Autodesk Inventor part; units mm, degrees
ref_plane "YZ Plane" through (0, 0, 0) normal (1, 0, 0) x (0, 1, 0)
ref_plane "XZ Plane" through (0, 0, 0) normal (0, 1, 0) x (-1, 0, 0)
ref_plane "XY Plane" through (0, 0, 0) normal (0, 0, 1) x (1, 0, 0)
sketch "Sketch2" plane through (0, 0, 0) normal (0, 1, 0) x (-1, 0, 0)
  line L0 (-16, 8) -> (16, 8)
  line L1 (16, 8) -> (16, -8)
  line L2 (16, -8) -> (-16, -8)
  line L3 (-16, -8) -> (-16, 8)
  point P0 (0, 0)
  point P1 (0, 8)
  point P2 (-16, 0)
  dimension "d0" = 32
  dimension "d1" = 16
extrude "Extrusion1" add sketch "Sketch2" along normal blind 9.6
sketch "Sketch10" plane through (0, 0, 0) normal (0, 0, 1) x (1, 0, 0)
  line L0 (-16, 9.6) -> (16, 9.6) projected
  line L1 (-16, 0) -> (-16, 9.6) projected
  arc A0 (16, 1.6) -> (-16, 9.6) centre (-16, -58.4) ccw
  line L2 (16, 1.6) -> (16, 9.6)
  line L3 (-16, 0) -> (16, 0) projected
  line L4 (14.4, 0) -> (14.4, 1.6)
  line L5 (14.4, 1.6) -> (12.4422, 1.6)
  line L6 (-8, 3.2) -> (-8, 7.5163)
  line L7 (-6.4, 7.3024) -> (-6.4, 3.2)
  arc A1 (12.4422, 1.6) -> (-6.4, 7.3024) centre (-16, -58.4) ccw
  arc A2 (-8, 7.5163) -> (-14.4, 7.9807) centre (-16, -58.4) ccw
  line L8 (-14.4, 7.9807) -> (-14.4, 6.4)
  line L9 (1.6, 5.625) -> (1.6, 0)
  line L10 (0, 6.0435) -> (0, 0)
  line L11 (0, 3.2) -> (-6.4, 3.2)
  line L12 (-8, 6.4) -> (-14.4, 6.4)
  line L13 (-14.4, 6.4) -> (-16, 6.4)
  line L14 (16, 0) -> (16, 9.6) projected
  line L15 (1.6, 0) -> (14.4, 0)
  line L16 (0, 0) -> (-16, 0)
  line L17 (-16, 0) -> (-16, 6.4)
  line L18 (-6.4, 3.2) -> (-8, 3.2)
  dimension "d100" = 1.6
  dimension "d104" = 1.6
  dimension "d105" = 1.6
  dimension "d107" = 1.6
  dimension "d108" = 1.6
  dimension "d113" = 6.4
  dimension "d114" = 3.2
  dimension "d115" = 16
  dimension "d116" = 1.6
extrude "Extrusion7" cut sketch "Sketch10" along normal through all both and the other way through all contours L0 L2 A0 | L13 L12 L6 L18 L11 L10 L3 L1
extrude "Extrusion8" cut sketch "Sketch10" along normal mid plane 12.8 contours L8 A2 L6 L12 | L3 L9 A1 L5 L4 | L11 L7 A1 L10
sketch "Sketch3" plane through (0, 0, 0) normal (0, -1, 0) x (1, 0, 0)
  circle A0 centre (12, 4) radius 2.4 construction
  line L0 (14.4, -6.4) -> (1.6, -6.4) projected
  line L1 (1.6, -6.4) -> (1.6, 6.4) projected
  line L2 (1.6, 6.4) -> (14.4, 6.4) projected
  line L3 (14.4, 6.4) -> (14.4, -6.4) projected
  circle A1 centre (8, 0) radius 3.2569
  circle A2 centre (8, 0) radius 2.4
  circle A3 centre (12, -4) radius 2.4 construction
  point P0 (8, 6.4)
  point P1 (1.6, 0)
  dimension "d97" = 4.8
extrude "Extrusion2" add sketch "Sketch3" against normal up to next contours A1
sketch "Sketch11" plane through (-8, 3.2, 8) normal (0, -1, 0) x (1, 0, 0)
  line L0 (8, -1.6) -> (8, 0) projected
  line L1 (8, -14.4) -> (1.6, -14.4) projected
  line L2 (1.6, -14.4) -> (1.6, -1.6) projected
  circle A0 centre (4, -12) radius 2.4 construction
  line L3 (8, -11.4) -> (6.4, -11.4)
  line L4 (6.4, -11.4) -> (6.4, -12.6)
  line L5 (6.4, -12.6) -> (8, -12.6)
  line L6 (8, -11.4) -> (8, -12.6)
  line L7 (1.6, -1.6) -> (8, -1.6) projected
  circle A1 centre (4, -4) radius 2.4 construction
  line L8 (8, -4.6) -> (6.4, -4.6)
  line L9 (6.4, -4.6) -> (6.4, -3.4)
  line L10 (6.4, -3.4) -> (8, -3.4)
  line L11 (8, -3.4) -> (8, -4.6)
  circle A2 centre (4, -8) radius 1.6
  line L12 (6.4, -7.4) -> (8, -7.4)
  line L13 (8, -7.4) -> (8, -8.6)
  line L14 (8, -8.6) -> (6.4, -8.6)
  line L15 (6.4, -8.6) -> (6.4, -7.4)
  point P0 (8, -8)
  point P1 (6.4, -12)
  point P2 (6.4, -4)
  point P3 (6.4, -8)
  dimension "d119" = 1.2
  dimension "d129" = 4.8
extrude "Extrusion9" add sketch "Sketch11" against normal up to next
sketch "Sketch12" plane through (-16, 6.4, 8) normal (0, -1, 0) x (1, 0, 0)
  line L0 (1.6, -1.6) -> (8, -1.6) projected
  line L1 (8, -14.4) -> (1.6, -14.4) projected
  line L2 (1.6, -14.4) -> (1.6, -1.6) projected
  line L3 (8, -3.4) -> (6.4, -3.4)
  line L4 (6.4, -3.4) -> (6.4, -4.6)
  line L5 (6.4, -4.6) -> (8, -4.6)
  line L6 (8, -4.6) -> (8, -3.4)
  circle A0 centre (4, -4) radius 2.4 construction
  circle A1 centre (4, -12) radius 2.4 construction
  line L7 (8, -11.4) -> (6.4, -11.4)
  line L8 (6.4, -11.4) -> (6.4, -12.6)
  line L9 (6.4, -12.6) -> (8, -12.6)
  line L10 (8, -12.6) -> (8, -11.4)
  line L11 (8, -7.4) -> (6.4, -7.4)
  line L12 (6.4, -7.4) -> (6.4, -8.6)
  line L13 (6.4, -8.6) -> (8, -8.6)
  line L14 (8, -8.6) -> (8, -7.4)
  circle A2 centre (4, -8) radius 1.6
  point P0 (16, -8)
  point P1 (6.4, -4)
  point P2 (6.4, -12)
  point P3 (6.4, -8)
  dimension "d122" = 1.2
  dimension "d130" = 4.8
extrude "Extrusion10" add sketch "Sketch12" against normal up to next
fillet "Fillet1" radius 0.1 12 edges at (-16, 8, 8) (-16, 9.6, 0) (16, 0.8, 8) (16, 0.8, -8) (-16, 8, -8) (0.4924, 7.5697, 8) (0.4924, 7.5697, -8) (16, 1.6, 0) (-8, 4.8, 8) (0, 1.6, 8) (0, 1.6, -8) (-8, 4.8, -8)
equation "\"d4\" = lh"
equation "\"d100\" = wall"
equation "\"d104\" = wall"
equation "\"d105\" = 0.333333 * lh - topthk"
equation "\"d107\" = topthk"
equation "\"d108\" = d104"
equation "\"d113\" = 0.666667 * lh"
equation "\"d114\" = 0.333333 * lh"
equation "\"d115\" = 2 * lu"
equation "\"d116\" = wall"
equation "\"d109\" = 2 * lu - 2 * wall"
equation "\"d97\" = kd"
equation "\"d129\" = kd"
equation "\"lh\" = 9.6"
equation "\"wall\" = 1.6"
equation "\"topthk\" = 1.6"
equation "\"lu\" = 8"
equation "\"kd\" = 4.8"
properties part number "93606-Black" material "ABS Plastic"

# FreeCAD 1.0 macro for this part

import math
import FreeCAD as App
import Part
import Sketcher

V = App.Vector
Q = App.Units.Quantity


def edges_at(feature, points):
    """Names of the edges that pass closest to the given points."""
    edges = feature.Shape.Edges
    near = lambda p: min(range(len(edges)), key=lambda i: edges[i].distToShape(Part.Vertex(*p))[0])
    return sorted({f"Edge{near(p) + 1}" for p in points})

doc = App.newDocument("Part")
body = doc.addObject("PartDesign::Body", "Body")

# Sketch on XZ plane
sketch1 = body.newObject("Sketcher::SketchObject", "Sketch")
sketch1.AttachmentSupport = (doc.getObject("XZ_Plane"), [""])
sketch1.MapMode = "FlatFace"
sketch1.addGeometry([
    Part.LineSegment(V(-16, 8, 0), V(16, 8, 0)),
    Part.LineSegment(V(16, 8, 0), V(16, -8, 0)),
    Part.LineSegment(V(16, -8, 0), V(-16, -8, 0)),
    Part.LineSegment(V(-16, -8, 0), V(-16, 8, 0)),
], False)
sketch1.addConstraint([
    Sketcher.Constraint("Coincident", 0, 2, 1, 1),
    Sketcher.Constraint("Coincident", 1, 2, 2, 1),
    Sketcher.Constraint("Coincident", 2, 2, 3, 1),
    Sketcher.Constraint("Coincident", 3, 2, 0, 1),
    Sketcher.Constraint("Horizontal", 0),
    Sketcher.Constraint("Vertical", 1),
    Sketcher.Constraint("Horizontal", 2),
    Sketcher.Constraint("Vertical", 3),
    Sketcher.Constraint("Symmetric", 0, 2, 2, 2, -1, 1),
    Sketcher.Constraint("DistanceX", 0, 1, 0, 2, Q("32 mm")),
    Sketcher.Constraint("DistanceY", 1, 2, 1, 1, Q("16 mm")),
])
pad1 = body.newObject("PartDesign::Pad", "Pad")
pad1.Profile = sketch1
pad1.Length = 9.6
pad1.Reversed = True

# Sketch on XY plane
sketch2 = body.newObject("Sketcher::SketchObject", "Sketch001")
sketch2.AttachmentSupport = (doc.getObject("XY_Plane"), [""])
sketch2.MapMode = "FlatFace"
sketch2.addGeometry([
    Part.LineSegment(V(16, 9.6, 0), V(-16, 9.6, 0)),  # 0
    Part.ArcOfCircle(Part.Circle(V(-16, -58.4, 0), V(0, 0, 1), 68), math.radians(61.927513), math.radians(90)),  # 1
    Part.LineSegment(V(16, 1.6, 0), V(16, 9.6, 0)),  # 2
    Part.LineSegment(V(-8, 6.4, 0), V(-16, 6.4, 0)),  # 3
    Part.LineSegment(V(-16, 6.4, 0), V(-16, 0, 0)),  # 4
    Part.LineSegment(V(-16, 0, 0), V(0, 0, 0)),  # 5
    Part.LineSegment(V(0, 0, 0), V(0, 3.2, 0)),  # 6
    Part.LineSegment(V(0, 3.2, 0), V(-8, 3.2, 0)),  # 7
    Part.LineSegment(V(-8, 3.2, 0), V(-8, 6.4, 0)),  # 8
], False)
sketch2.addConstraint([
    Sketcher.Constraint("Tangent", 0, 2, 1, 2),
    Sketcher.Constraint("Coincident", 1, 1, 2, 1),
    Sketcher.Constraint("Coincident", 2, 2, 0, 1),
    Sketcher.Constraint("Coincident", 3, 2, 4, 1),
    Sketcher.Constraint("Coincident", 4, 2, 5, 1),
    Sketcher.Constraint("Coincident", 5, 2, 6, 1),
    Sketcher.Constraint("Coincident", 6, 2, 7, 1),
    Sketcher.Constraint("Coincident", 7, 2, 8, 1),
    Sketcher.Constraint("Coincident", 8, 2, 3, 1),
    Sketcher.Constraint("Horizontal", 0),
    Sketcher.Constraint("Vertical", 2),
    Sketcher.Constraint("Horizontal", 3),
    Sketcher.Constraint("Vertical", 4),
    Sketcher.Constraint("Horizontal", 5),
    Sketcher.Constraint("Vertical", 6),
    Sketcher.Constraint("Horizontal", 7),
    Sketcher.Constraint("Vertical", 8),
    Sketcher.Constraint("Coincident", 5, 2, -1, 1),
    Sketcher.Constraint("Vertical", 0, 2, 3, 2),
    Sketcher.Constraint("Equal", 3, 7),
    Sketcher.Constraint("Equal", 7, 2),
    Sketcher.Constraint("Equal", 6, 8),
    Sketcher.Constraint("DistanceX", 5, 1, 5, 2, Q("16 mm")),
    Sketcher.Constraint("DistanceY", 4, 2, 4, 1, Q("6.4 mm")),
    Sketcher.Constraint("DistanceX", -1, 1, 1, 1, Q("16 mm")),
    Sketcher.Constraint("DistanceY", -1, 1, 1, 1, Q("1.6 mm")),
])
pocket1 = body.newObject("PartDesign::Pocket", "Pocket")
pocket1.Profile = sketch2
pocket1.Type = "ThroughAll"
pocket1.Midplane = True

# Sketch on XY plane
sketch3 = body.newObject("Sketcher::SketchObject", "Sketch002")
sketch3.AttachmentSupport = (doc.getObject("XY_Plane"), [""])
sketch3.MapMode = "FlatFace"
sketch3.addGeometry([
    Part.LineSegment(V(-14.4, 7.9807, 0), V(-14.4, 6.4, 0)),  # 0
    Part.LineSegment(V(-14.4, 6.4, 0), V(-8, 6.4, 0)),  # 1
    Part.LineSegment(V(-8, 6.4, 0), V(-8, 7.5163, 0)),  # 2
    Part.ArcOfCircle(Part.Circle(V(-15.999604, -58.395914, 0), V(0, 0, 1), 66.395886), math.radians(83.079996), math.radians(88.619501)),  # 3
    Part.LineSegment(V(1.6, 0, 0), V(14.4, 0, 0)),  # 4
    Part.LineSegment(V(14.4, 0, 0), V(14.4, 1.6, 0)),  # 5
    Part.LineSegment(V(14.4, 1.6, 0), V(12.4422, 1.6, 0)),  # 6
    Part.ArcOfCircle(Part.Circle(V(-16.000815, -58.402112, 0), V(0, 0, 1), 66.402248), math.radians(64.637478), math.radians(74.629274)),  # 7
    Part.LineSegment(V(1.6, 5.625, 0), V(1.6, 0, 0)),  # 8
    Part.LineSegment(V(-6.4, 3.2, 0), V(0, 3.2, 0)),  # 9
    Part.LineSegment(V(0, 3.2, 0), V(0, 6.0435, 0)),  # 10
    Part.ArcOfCircle(Part.Circle(V(-16.000815, -58.402112, 0), V(0, 0, 1), 66.402248), math.radians(76.056329), math.radians(81.686712)),  # 11
    Part.LineSegment(V(-6.4, 7.3024, 0), V(-6.4, 3.2, 0)),  # 12
], False)
sketch3.addConstraint([
    Sketcher.Constraint("Coincident", 0, 2, 1, 1),
    Sketcher.Constraint("Coincident", 1, 2, 2, 1),
    Sketcher.Constraint("Coincident", 2, 2, 3, 1),
    Sketcher.Constraint("Coincident", 3, 2, 0, 1),
    Sketcher.Constraint("Coincident", 4, 2, 5, 1),
    Sketcher.Constraint("Coincident", 5, 2, 6, 1),
    Sketcher.Constraint("Coincident", 6, 2, 7, 1),
    Sketcher.Constraint("Coincident", 7, 2, 8, 1),
    Sketcher.Constraint("Coincident", 8, 2, 4, 1),
    Sketcher.Constraint("Coincident", 9, 2, 10, 1),
    Sketcher.Constraint("Coincident", 10, 2, 11, 1),
    Sketcher.Constraint("Coincident", 11, 2, 12, 1),
    Sketcher.Constraint("Coincident", 12, 2, 9, 1),
    Sketcher.Constraint("Vertical", 0),
    Sketcher.Constraint("Horizontal", 1),
    Sketcher.Constraint("Vertical", 2),
    Sketcher.Constraint("Horizontal", 4),
    Sketcher.Constraint("Vertical", 5),
    Sketcher.Constraint("Horizontal", 6),
    Sketcher.Constraint("Vertical", 8),
    Sketcher.Constraint("Horizontal", 9),
    Sketcher.Constraint("Vertical", 10),
    Sketcher.Constraint("Vertical", 12),
    Sketcher.Constraint("Coincident", 11, 3, 7, 3),
    Sketcher.Constraint("Equal", 7, 11),
    Sketcher.Constraint("PointOnObject", 4, 2, -1),
    Sketcher.Constraint("PointOnObject", 9, 2, -2),
    Sketcher.Constraint("Equal", 1, 9),
    Sketcher.Constraint("DistanceX", 1, 1, 1, 2, Q("6.4 mm")),
    Sketcher.Constraint("DistanceY", 5, 1, 5, 2, Q("1.6 mm")),
    Sketcher.Constraint("DistanceY", -1, 1, 0, 2, Q("6.4 mm")),
    Sketcher.Constraint("DistanceX", -1, 1, 7, 2, Q("1.6 mm")),
    Sketcher.Constraint("DistanceY", -1, 1, 9, 2, Q("3.2 mm")),
    Sketcher.Constraint("DistanceX", 2, 2, 11, 2, Q("1.6 mm")),
    Sketcher.Constraint("DistanceX", 4, 1, 4, 2, Q("12.8 mm")),
    Sketcher.Constraint("Radius", 3, Q("66.396 mm")),
    Sketcher.Constraint("DistanceX", 3, 3, -1, 1, Q("15.9996 mm")),
    Sketcher.Constraint("Radius", 7, Q("66.4022 mm")),
    Sketcher.Constraint("DistanceY", 8, 2, 8, 1, Q("5.625 mm")),
    Sketcher.Constraint("DistanceX", 6, 2, 6, 1, Q("1.9578 mm")),
    Sketcher.Constraint("DistanceY", 0, 2, 0, 1, Q("1.5807 mm")),
])
pocket2 = body.newObject("PartDesign::Pocket", "Pocket001")
pocket2.Profile = sketch3
pocket2.Length = 12.8
pocket2.Midplane = True

# Sketch on XZ plane
sketch4 = body.newObject("Sketcher::SketchObject", "Sketch003")
sketch4.AttachmentSupport = (doc.getObject("XZ_Plane"), [""])
sketch4.MapMode = "FlatFace"
sketch4.addGeometry([
    Part.Circle(V(8, 0, 0), V(0, 0, 1), 3.2569),
    Part.Circle(V(8, 0, 0), V(0, 0, 1), 2.4),
], False)
sketch4.addConstraint([
    Sketcher.Constraint("Coincident", 1, 3, 0, 3),
    Sketcher.Constraint("PointOnObject", 0, 3, -1),
    Sketcher.Constraint("Diameter", 1, Q("4.8 mm")),
    Sketcher.Constraint("DistanceX", -1, 1, 0, 3, Q("8 mm")),
    Sketcher.Constraint("Diameter", 0, Q("6.5138 mm")),
])
pad2 = body.newObject("PartDesign::Pad", "Pad001")
pad2.Profile = sketch4
pad2.Type = "UpToFirst"
pad2.Reversed = True

# Sketch on XZ plane
sketch5 = body.newObject("Sketcher::SketchObject", "Sketch004")
sketch5.AttachmentSupport = (doc.getObject("XZ_Plane"), [""])
sketch5.MapMode = "FlatFace"
sketch5.AttachmentOffset = App.Placement(V(0, 0, -3.2), App.Rotation())
sketch5.addGeometry([
    Part.LineSegment(V(0, -4.6, 0), V(0, -3.4, 0)),  # 0
    Part.LineSegment(V(0, -3.4, 0), V(-1.6, -3.4, 0)),  # 1
    Part.LineSegment(V(-1.6, -3.4, 0), V(-1.6, -4.6, 0)),  # 2
    Part.LineSegment(V(-1.6, -4.6, 0), V(0, -4.6, 0)),  # 3
    Part.LineSegment(V(-1.6, 3.4, 0), V(0, 3.4, 0)),  # 4
    Part.LineSegment(V(0, 3.4, 0), V(0, 4.6, 0)),  # 5
    Part.LineSegment(V(0, 4.6, 0), V(-1.6, 4.6, 0)),  # 6
    Part.LineSegment(V(-1.6, 4.6, 0), V(-1.6, 3.4, 0)),  # 7
    Part.Circle(V(-4, 0, 0), V(0, 0, 1), 1.6),  # 8
    Part.LineSegment(V(0, 0.6, 0), V(-1.6, 0.6, 0)),  # 9
    Part.LineSegment(V(-1.6, 0.6, 0), V(-1.6, -0.6, 0)),  # 10
    Part.LineSegment(V(-1.6, -0.6, 0), V(0, -0.6, 0)),  # 11
    Part.LineSegment(V(0, -0.6, 0), V(0, 0.6, 0)),  # 12
], False)
sketch5.addConstraint([
    Sketcher.Constraint("Coincident", 0, 2, 1, 1),
    Sketcher.Constraint("Coincident", 1, 2, 2, 1),
    Sketcher.Constraint("Coincident", 2, 2, 3, 1),
    Sketcher.Constraint("Coincident", 3, 2, 0, 1),
    Sketcher.Constraint("Coincident", 4, 2, 5, 1),
    Sketcher.Constraint("Coincident", 5, 2, 6, 1),
    Sketcher.Constraint("Coincident", 6, 2, 7, 1),
    Sketcher.Constraint("Coincident", 7, 2, 4, 1),
    Sketcher.Constraint("Coincident", 9, 2, 10, 1),
    Sketcher.Constraint("Coincident", 10, 2, 11, 1),
    Sketcher.Constraint("Coincident", 11, 2, 12, 1),
    Sketcher.Constraint("Coincident", 12, 2, 9, 1),
    Sketcher.Constraint("Vertical", 0),
    Sketcher.Constraint("Horizontal", 1),
    Sketcher.Constraint("Vertical", 2),
    Sketcher.Constraint("Horizontal", 3),
    Sketcher.Constraint("Horizontal", 4),
    Sketcher.Constraint("Vertical", 5),
    Sketcher.Constraint("Horizontal", 6),
    Sketcher.Constraint("Vertical", 7),
    Sketcher.Constraint("Horizontal", 9),
    Sketcher.Constraint("Vertical", 10),
    Sketcher.Constraint("Horizontal", 11),
    Sketcher.Constraint("Vertical", 12),
    Sketcher.Constraint("Symmetric", 0, 2, 4, 2, -1, 1),
    Sketcher.Constraint("Symmetric", 11, 2, 12, 2, -1, 1),
    Sketcher.Constraint("Symmetric", 3, 2, 5, 2, -1),
    Sketcher.Constraint("PointOnObject", 8, 3, -1),
    Sketcher.Constraint("Vertical", 2, 2, 6, 2),
    Sketcher.Constraint("Vertical", 7, 2, 9, 2),
    Sketcher.Constraint("Equal", 7, 10),
    Sketcher.Constraint("DistanceY", 0, 1, 0, 2, Q("1.2 mm")),
    Sketcher.Constraint("Diameter", 8, Q("3.2 mm")),
    Sketcher.Constraint("DistanceX", 1, 2, 1, 1, Q("1.6 mm")),
    Sketcher.Constraint("DistanceX", 8, 3, -1, 1, Q("4 mm")),
    Sketcher.Constraint("DistanceY", 3, 2, 4, 2, Q("8 mm")),
])
pad3 = body.newObject("PartDesign::Pad", "Pad002")
pad3.Profile = sketch5
pad3.Type = "UpToFirst"
pad3.Reversed = True

# Sketch on XZ plane
sketch6 = body.newObject("Sketcher::SketchObject", "Sketch005")
sketch6.AttachmentSupport = (doc.getObject("XZ_Plane"), [""])
sketch6.MapMode = "FlatFace"
sketch6.AttachmentOffset = App.Placement(V(0, 0, -6.4), App.Rotation())
sketch6.addGeometry([
    Part.LineSegment(V(-8, 3.4, 0), V(-8, 4.6, 0)),  # 0
    Part.LineSegment(V(-8, 4.6, 0), V(-9.6, 4.6, 0)),  # 1
    Part.LineSegment(V(-9.6, 4.6, 0), V(-9.6, 3.4, 0)),  # 2
    Part.LineSegment(V(-9.6, 3.4, 0), V(-8, 3.4, 0)),  # 3
    Part.LineSegment(V(-8, -4.6, 0), V(-8, -3.4, 0)),  # 4
    Part.LineSegment(V(-8, -3.4, 0), V(-9.6, -3.4, 0)),  # 5
    Part.LineSegment(V(-9.6, -3.4, 0), V(-9.6, -4.6, 0)),  # 6
    Part.LineSegment(V(-9.6, -4.6, 0), V(-8, -4.6, 0)),  # 7
    Part.LineSegment(V(-8, -0.6, 0), V(-8, 0.6, 0)),  # 8
    Part.LineSegment(V(-8, 0.6, 0), V(-9.6, 0.6, 0)),  # 9
    Part.LineSegment(V(-9.6, 0.6, 0), V(-9.6, -0.6, 0)),  # 10
    Part.LineSegment(V(-9.6, -0.6, 0), V(-8, -0.6, 0)),  # 11
    Part.Circle(V(-12, 0, 0), V(0, 0, 1), 1.6),  # 12
], False)
sketch6.addConstraint([
    Sketcher.Constraint("Coincident", 0, 2, 1, 1),
    Sketcher.Constraint("Coincident", 1, 2, 2, 1),
    Sketcher.Constraint("Coincident", 2, 2, 3, 1),
    Sketcher.Constraint("Coincident", 3, 2, 0, 1),
    Sketcher.Constraint("Coincident", 4, 2, 5, 1),
    Sketcher.Constraint("Coincident", 5, 2, 6, 1),
    Sketcher.Constraint("Coincident", 6, 2, 7, 1),
    Sketcher.Constraint("Coincident", 7, 2, 4, 1),
    Sketcher.Constraint("Coincident", 8, 2, 9, 1),
    Sketcher.Constraint("Coincident", 9, 2, 10, 1),
    Sketcher.Constraint("Coincident", 10, 2, 11, 1),
    Sketcher.Constraint("Coincident", 11, 2, 8, 1),
    Sketcher.Constraint("Vertical", 0),
    Sketcher.Constraint("Horizontal", 1),
    Sketcher.Constraint("Vertical", 2),
    Sketcher.Constraint("Horizontal", 3),
    Sketcher.Constraint("Vertical", 4),
    Sketcher.Constraint("Horizontal", 5),
    Sketcher.Constraint("Vertical", 6),
    Sketcher.Constraint("Horizontal", 7),
    Sketcher.Constraint("Vertical", 8),
    Sketcher.Constraint("Horizontal", 9),
    Sketcher.Constraint("Vertical", 10),
    Sketcher.Constraint("Horizontal", 11),
    Sketcher.Constraint("Symmetric", 3, 2, 4, 2, -1),
    Sketcher.Constraint("Symmetric", 1, 2, 6, 2, -1),
    Sketcher.Constraint("PointOnObject", 12, 3, -1),
    Sketcher.Constraint("Vertical", 7, 2, 8, 2),
    Sketcher.Constraint("Vertical", 6, 2, 9, 2),
    Sketcher.Constraint("Equal", 6, 8),
    Sketcher.Constraint("DistanceY", 0, 1, 0, 2, Q("1.2 mm")),
    Sketcher.Constraint("Diameter", 12, Q("3.2 mm")),
    Sketcher.Constraint("DistanceX", 1, 2, 1, 1, Q("1.6 mm")),
    Sketcher.Constraint("DistanceX", 12, 3, -1, 1, Q("12 mm")),
    Sketcher.Constraint("DistanceX", 0, 2, -1, 1, Q("8 mm")),
    Sketcher.Constraint("DistanceY", 4, 2, 0, 2, Q("8 mm")),
    Sketcher.Constraint("DistanceY", 8, 2, 0, 2, Q("4 mm")),
])
pad4 = body.newObject("PartDesign::Pad", "Pad003")
pad4.Profile = sketch6
pad4.Type = "UpToFirst"
pad4.Reversed = True
doc.recompute()

fillet = body.newObject("PartDesign::Fillet", "Fillet")
fillet.Base = (pad4, edges_at(pad4, [
    (-16, 8, 8),
    (-16, 9.6, 0),
    (16, 0.8, 8),
    (16, 0.8, -8),
    (-16, 8, -8),
    (0.492, 7.57, 8),
    (0.492, 7.57, -8),
    (16, 1.6, 0),
    (-8, 4.8, 8),
    (0, 1.6, 8),
    (0, 1.6, -8),
    (-8, 4.8, -8),
]))
fillet.Radius = 0.1

doc.recompute()
